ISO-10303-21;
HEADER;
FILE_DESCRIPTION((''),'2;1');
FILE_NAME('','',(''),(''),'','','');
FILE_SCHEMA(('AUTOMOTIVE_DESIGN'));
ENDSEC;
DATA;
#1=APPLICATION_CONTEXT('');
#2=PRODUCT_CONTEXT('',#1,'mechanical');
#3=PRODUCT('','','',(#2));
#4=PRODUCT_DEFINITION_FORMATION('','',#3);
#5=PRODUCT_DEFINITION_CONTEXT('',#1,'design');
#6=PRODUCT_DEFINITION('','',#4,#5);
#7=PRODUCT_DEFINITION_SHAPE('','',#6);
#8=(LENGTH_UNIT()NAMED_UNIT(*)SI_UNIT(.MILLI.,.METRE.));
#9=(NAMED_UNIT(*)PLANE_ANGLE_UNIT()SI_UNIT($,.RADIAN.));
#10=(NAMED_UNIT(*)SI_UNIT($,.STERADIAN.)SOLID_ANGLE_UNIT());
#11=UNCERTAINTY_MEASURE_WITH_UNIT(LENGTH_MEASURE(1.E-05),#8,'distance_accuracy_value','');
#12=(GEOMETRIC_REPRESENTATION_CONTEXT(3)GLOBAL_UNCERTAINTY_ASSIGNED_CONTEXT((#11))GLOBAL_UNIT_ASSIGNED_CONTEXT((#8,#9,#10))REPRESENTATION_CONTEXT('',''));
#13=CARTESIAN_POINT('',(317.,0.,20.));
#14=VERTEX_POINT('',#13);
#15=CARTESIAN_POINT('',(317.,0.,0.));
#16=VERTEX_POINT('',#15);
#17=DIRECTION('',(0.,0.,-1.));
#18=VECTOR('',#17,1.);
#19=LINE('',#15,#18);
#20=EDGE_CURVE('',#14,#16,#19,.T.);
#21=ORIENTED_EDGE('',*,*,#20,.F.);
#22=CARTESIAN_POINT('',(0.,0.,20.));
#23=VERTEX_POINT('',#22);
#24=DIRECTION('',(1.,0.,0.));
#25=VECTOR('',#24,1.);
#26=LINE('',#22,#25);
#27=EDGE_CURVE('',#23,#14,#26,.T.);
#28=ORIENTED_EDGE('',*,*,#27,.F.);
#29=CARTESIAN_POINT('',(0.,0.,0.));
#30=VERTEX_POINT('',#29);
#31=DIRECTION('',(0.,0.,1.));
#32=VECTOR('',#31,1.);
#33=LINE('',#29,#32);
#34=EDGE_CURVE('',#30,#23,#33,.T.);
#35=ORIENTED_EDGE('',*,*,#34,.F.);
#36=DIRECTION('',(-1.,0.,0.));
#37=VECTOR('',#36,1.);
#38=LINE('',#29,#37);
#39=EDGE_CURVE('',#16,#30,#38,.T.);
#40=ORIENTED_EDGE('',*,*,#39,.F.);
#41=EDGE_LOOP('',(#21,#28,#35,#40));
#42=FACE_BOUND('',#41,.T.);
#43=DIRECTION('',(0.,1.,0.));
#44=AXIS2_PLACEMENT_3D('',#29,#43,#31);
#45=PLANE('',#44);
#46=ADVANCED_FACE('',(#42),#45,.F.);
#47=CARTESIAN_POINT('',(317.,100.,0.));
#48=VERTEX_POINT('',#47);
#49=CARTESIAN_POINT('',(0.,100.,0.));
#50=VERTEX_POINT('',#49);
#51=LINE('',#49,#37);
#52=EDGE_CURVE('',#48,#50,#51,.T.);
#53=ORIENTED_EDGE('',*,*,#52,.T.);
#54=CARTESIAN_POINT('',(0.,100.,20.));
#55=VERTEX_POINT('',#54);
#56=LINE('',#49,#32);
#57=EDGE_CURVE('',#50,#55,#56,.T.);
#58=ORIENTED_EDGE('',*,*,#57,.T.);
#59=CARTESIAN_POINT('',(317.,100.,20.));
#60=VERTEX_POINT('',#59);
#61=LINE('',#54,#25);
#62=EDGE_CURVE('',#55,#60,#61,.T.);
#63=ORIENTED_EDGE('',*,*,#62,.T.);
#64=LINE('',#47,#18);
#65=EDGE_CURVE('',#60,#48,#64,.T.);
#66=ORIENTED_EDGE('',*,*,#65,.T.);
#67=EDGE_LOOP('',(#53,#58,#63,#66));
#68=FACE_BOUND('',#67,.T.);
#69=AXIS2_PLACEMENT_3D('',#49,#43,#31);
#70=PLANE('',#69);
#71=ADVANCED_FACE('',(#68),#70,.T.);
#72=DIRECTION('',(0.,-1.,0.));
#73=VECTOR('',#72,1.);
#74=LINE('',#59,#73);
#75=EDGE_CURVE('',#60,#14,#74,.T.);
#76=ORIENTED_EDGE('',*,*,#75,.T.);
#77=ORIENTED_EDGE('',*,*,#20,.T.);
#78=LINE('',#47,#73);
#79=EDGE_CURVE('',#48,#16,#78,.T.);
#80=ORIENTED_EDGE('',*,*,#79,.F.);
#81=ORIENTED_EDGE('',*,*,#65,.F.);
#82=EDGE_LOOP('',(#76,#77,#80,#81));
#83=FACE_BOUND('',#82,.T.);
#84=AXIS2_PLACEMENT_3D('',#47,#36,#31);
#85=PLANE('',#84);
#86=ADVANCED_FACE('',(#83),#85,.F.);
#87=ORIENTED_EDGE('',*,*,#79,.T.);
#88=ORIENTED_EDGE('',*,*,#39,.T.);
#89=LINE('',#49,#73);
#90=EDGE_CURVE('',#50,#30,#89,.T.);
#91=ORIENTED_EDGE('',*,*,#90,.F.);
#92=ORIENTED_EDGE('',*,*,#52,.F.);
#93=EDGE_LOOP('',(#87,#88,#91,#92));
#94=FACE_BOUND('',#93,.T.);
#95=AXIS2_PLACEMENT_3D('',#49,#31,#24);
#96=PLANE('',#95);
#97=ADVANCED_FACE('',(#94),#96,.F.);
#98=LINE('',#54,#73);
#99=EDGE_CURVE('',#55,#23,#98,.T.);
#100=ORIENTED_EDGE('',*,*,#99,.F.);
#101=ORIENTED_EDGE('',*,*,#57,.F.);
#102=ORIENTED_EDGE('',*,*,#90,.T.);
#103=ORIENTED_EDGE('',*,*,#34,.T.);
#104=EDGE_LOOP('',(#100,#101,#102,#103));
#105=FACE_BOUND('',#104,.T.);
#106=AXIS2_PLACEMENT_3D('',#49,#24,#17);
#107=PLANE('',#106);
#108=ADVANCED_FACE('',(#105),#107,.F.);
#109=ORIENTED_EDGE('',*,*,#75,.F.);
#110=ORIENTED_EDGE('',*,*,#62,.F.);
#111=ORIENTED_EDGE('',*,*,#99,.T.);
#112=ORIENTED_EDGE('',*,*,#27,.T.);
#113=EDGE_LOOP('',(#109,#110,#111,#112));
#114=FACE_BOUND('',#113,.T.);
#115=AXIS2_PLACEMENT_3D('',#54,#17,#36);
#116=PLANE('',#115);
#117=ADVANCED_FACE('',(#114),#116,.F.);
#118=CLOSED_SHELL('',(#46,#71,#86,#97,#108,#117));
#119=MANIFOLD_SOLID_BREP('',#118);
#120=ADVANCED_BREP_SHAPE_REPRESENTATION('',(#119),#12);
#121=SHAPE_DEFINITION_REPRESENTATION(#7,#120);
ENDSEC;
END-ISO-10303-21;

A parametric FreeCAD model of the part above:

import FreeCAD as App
import Part
import Sketcher
from FreeCAD import Vector


def add_polygon(sketch, points):
    """Adds a closed chain of lines whose ends are joined by coincident constraints."""
    first, n = sketch.GeometryCount, len(points)
    for a, b in zip(points, points[1:] + points[:1]):
        sketch.addGeometry(Part.LineSegment(App.Vector(*a, 0), App.Vector(*b, 0)), False)
    for i in range(n):
        sketch.addConstraint(Sketcher.Constraint("Coincident", first + i, 2, first + (i + 1) % n, 1))

doc = App.newDocument("Part")
body = doc.addObject("PartDesign::Body", "Body")

sketch1 = body.newObject("Sketcher::SketchObject", "Sketch")
sketch1.AttachmentSupport = (doc.getObject("XZ_Plane"), [""])
sketch1.MapMode = "FlatFace"
add_polygon(sketch1, [(0, 0), (0, 20), (317, 20), (317, 0)])
sketch1.addConstraint(Sketcher.Constraint("Vertical", 0))
sketch1.addConstraint(Sketcher.Constraint("Horizontal", 1))
sketch1.addConstraint(Sketcher.Constraint("Vertical", 2))
sketch1.addConstraint(Sketcher.Constraint("Horizontal", 3))
sketch1.addConstraint(Sketcher.Constraint("Coincident", 3, 2, -1, 1))
sketch1.addConstraint(Sketcher.Constraint("DistanceX", 1, 1, 1, 2, 317.0))
sketch1.addConstraint(Sketcher.Constraint("DistanceY", 0, 1, 0, 2, 20.0))
pad1 = body.newObject("PartDesign::Pad", "Pad")
pad1.Profile = sketch1
pad1.Length = 100
pad1.Reversed = True

doc.recompute()
